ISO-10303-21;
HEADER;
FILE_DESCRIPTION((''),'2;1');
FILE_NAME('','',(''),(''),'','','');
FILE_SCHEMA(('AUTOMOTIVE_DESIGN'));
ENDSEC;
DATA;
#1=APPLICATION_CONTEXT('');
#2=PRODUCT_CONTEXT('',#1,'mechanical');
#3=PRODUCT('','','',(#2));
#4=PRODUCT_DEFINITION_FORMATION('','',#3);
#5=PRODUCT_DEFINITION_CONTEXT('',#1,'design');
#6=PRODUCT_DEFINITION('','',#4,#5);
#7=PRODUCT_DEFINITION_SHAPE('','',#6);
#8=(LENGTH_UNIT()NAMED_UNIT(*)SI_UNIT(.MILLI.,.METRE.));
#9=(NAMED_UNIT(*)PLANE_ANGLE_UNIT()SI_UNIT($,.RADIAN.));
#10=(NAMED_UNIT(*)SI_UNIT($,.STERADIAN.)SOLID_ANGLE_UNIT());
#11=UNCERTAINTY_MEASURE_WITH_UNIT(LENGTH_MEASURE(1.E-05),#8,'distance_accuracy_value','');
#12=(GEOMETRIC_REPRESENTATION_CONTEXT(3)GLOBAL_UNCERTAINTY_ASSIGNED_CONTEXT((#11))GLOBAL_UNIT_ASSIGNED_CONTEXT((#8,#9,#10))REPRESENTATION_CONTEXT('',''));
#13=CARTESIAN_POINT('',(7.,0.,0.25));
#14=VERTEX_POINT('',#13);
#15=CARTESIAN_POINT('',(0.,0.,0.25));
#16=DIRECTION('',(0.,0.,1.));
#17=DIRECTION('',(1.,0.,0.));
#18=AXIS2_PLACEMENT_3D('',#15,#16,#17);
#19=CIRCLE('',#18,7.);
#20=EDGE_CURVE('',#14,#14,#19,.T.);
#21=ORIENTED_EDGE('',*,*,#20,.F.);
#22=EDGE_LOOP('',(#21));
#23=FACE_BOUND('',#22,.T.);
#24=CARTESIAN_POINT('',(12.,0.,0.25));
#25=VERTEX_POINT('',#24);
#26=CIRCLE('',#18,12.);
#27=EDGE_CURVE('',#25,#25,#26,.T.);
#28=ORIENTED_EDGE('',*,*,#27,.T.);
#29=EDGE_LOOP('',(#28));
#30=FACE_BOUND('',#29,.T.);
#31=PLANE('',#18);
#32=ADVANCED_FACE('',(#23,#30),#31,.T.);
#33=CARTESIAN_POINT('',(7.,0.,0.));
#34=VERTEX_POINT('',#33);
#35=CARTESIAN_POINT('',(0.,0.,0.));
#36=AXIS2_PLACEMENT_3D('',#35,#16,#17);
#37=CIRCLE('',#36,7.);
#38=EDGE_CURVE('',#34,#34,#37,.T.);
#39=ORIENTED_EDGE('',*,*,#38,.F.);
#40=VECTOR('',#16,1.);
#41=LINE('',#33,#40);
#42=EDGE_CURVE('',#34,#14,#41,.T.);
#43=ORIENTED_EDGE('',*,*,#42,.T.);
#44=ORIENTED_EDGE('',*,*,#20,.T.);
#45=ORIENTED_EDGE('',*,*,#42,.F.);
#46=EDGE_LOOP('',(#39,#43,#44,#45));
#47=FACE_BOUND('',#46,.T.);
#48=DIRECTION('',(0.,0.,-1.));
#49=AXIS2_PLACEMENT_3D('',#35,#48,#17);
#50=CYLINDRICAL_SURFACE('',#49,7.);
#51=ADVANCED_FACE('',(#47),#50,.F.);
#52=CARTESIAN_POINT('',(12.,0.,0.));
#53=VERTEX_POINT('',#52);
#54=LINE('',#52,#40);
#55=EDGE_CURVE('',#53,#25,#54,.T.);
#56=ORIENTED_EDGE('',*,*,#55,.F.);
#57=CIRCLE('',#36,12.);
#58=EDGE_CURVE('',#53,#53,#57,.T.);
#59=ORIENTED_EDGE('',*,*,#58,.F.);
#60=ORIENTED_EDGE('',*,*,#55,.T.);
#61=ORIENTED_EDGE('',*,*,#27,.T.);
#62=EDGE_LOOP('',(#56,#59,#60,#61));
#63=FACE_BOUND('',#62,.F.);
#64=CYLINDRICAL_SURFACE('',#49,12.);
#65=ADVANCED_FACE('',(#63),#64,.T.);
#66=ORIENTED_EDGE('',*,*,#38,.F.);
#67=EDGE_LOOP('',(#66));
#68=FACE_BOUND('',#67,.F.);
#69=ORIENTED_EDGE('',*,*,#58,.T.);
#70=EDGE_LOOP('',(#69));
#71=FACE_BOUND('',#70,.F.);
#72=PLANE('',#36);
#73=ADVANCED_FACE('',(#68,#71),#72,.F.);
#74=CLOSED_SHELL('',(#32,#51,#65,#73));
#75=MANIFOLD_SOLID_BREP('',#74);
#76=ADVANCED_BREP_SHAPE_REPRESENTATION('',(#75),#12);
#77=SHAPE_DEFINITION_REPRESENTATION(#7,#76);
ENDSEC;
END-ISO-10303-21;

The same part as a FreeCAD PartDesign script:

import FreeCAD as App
import Part
import Sketcher

V = App.Vector
Q = App.Units.Quantity

doc = App.newDocument("Part")
body = doc.addObject("PartDesign::Body", "Body")

sketch1 = body.newObject("Sketcher::SketchObject", "Sketch")
sketch1.AttachmentSupport = (doc.getObject("XY_Plane"), [""])
sketch1.MapMode = "FlatFace"
sketch1.addGeometry([
    Part.Circle(V(0, 0, 0), V(0, 0, 1), 12),
    Part.Circle(V(0, 0, 0), V(0, 0, 1), 7),
], False)
sketch1.addConstraint([
    Sketcher.Constraint("Coincident", 0, 3, -1, 1),
    Sketcher.Constraint("Coincident", 1, 3, -1, 1),
    Sketcher.Constraint("Diameter", 0, Q("24 mm")),
    Sketcher.Constraint("Diameter", 1, Q("14 mm")),
])
pad1 = body.newObject("PartDesign::Pad", "Pad")
pad1.Profile = sketch1
pad1.Length = 0.25

doc.recompute()
